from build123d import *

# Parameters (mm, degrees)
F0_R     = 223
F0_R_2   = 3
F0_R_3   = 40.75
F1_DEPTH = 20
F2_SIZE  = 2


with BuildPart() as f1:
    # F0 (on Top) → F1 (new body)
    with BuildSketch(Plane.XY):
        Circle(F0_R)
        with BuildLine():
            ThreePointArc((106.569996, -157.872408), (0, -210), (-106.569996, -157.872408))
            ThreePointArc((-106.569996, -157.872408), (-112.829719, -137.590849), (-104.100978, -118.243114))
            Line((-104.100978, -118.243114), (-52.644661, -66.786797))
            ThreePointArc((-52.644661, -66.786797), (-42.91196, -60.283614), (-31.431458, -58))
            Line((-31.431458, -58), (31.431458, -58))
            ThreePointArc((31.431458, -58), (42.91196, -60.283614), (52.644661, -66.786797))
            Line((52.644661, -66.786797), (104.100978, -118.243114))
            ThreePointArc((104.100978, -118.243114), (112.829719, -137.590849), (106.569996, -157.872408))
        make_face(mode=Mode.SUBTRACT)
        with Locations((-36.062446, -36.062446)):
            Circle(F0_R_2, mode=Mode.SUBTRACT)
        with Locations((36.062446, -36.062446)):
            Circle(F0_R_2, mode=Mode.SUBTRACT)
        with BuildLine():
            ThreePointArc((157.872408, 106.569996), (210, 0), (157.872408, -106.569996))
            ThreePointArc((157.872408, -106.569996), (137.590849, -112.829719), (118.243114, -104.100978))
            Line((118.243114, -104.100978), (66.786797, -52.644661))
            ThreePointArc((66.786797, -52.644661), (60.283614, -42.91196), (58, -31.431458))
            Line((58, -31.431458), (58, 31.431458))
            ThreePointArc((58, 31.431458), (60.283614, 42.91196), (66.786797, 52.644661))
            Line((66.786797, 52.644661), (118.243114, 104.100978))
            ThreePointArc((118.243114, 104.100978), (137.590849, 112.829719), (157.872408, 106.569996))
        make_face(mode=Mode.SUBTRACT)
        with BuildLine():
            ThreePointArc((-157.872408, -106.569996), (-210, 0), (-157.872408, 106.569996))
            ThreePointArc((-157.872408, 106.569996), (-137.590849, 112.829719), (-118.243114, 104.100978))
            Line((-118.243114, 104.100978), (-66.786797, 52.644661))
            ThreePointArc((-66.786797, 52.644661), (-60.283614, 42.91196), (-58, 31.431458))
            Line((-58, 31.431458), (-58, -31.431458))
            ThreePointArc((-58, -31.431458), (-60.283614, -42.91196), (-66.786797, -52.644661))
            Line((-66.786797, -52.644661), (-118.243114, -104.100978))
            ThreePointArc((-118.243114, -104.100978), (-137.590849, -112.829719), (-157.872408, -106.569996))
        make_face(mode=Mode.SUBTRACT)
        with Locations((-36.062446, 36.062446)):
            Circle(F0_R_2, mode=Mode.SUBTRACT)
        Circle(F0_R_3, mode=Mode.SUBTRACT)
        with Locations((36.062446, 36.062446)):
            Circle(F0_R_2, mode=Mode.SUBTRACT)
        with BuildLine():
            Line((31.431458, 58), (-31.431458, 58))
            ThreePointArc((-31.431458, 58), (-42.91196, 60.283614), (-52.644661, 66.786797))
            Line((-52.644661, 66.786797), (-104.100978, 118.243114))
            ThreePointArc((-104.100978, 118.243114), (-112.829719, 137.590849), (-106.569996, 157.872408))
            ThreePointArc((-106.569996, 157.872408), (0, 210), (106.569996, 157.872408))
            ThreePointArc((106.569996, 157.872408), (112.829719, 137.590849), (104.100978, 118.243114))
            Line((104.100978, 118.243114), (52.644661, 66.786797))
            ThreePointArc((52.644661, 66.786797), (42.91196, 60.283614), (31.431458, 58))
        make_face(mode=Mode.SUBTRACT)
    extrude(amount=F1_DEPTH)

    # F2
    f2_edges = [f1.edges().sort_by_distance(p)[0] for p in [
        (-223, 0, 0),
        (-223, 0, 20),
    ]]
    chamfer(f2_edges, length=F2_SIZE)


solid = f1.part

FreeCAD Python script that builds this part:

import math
import FreeCAD as App
import Part
import Sketcher
Q = App.Units.Quantity


def edges_at(feature, points):
    """Names of the edges that pass closest to the given points."""
    edges = feature.Shape.Edges
    near = lambda p: min(range(len(edges)), key=lambda i: edges[i].distToShape(Part.Vertex(*p))[0])
    return sorted({f"Edge{near(p) + 1}" for p in points})

doc = App.newDocument("Part")
body = doc.addObject("PartDesign::Body", "Body")

# Sketch on XY plane
sketch1 = body.newObject("Sketcher::SketchObject", "Sketch")
sketch1.AttachmentSupport = (doc.getObject("XY_Plane"), [""])
sketch1.MapMode = "FlatFace"
sketch1.addGeometry([
    Part.Circle(App.Vector(0, 0, 0), App.Vector(0, 0, 1), 223),  # 0
    Part.Circle(App.Vector(-36.1, -36.1, 0), App.Vector(0, 0, 1), 3),  # 1
    Part.ArcOfCircle(Part.Circle(App.Vector(82.9, -139.5, 0), App.Vector(0, 0, 1), 30), math.radians(-38), math.radians(45)),  # 2
    Part.ArcOfCircle(Part.Circle(App.Vector(0, -75, 0), App.Vector(0, 0, 1), 135), math.radians(-142), math.radians(-38)),  # 3
    Part.ArcOfCircle(Part.Circle(App.Vector(-82.9, -139.5, 0), App.Vector(0, 0, 1), 30), math.radians(135), math.radians(218)),  # 4
    Part.LineSegment(App.Vector(-104.1, -118.2, 0), App.Vector(-52.6, -66.8, 0)),  # 5
    Part.ArcOfCircle(Part.Circle(App.Vector(-31.4, -88, 0), App.Vector(0, 0, 1), 30), math.radians(90), math.radians(135)),  # 6
    Part.LineSegment(App.Vector(-31.4, -58, 0), App.Vector(31.4, -58, 0)),  # 7
    Part.ArcOfCircle(Part.Circle(App.Vector(31.4, -88, 0), App.Vector(0, 0, 1), 30), math.radians(45), math.radians(90)),  # 8
    Part.LineSegment(App.Vector(52.6, -66.8, 0), App.Vector(104.1, -118.2, 0)),  # 9
    Part.Circle(App.Vector(36.1, -36.1, 0), App.Vector(0, 0, 1), 3),  # 10
    Part.ArcOfCircle(Part.Circle(App.Vector(-139.5, -82.9, 0), App.Vector(0, 0, 1), 30), math.radians(-128), math.radians(-45)),  # 11
    Part.ArcOfCircle(Part.Circle(App.Vector(-75, 0, 0), App.Vector(0, 0, 1), 135), math.radians(128), math.radians(232)),  # 12
    Part.ArcOfCircle(Part.Circle(App.Vector(-139.5, 82.9, 0), App.Vector(0, 0, 1), 30), math.radians(45), math.radians(128)),  # 13
    Part.LineSegment(App.Vector(-118.2, 104.1, 0), App.Vector(-66.8, 52.6, 0)),  # 14
    Part.ArcOfCircle(Part.Circle(App.Vector(-88, 31.4, 0), App.Vector(0, 0, 1), 30), math.radians(0), math.radians(45)),  # 15
    Part.LineSegment(App.Vector(-58, 31.4, 0), App.Vector(-58, -31.4, 0)),  # 16
    Part.ArcOfCircle(Part.Circle(App.Vector(-88, -31.4, 0), App.Vector(0, 0, 1), 30), math.radians(-45), math.radians(0)),  # 17
    Part.LineSegment(App.Vector(-66.8, -52.6, 0), App.Vector(-118.2, -104.1, 0)),  # 18
    Part.Circle(App.Vector(-36.1, 36.1, 0), App.Vector(0, 0, 1), 3),  # 19
    Part.Circle(App.Vector(0, 0, 0), App.Vector(0, 0, 1), 40.8),  # 20
    Part.Circle(App.Vector(36.1, 36.1, 0), App.Vector(0, 0, 1), 3),  # 21
    Part.ArcOfCircle(Part.Circle(App.Vector(139.5, 82.9, 0), App.Vector(0, 0, 1), 30), math.radians(52), math.radians(135)),  # 22
    Part.ArcOfCircle(Part.Circle(App.Vector(75, 0, 0), App.Vector(0, 0, 1), 135), math.radians(-52), math.radians(52)),  # 23
    Part.ArcOfCircle(Part.Circle(App.Vector(139.5, -82.9, 0), App.Vector(0, 0, 1), 30), math.radians(-135), math.radians(-52)),  # 24
    Part.LineSegment(App.Vector(118.2, -104.1, 0), App.Vector(66.8, -52.6, 0)),  # 25
    Part.ArcOfCircle(Part.Circle(App.Vector(88, -31.4, 0), App.Vector(0, 0, 1), 30), math.radians(-180), math.radians(-135)),  # 26
    Part.LineSegment(App.Vector(58, -31.4, 0), App.Vector(58, 31.4, 0)),  # 27
    Part.ArcOfCircle(Part.Circle(App.Vector(88, 31.4, 0), App.Vector(0, 0, 1), 30), math.radians(135), math.radians(180)),  # 28
    Part.LineSegment(App.Vector(66.8, 52.6, 0), App.Vector(118.2, 104.1, 0)),  # 29
    Part.ArcOfCircle(Part.Circle(App.Vector(31.4, 88, 0), App.Vector(0, 0, 1), 30), math.radians(-90), math.radians(-45)),  # 30
    Part.LineSegment(App.Vector(31.4, 58, 0), App.Vector(-31.4, 58, 0)),  # 31
    Part.ArcOfCircle(Part.Circle(App.Vector(-31.4, 88, 0), App.Vector(0, 0, 1), 30), math.radians(-135), math.radians(-90)),  # 32
    Part.LineSegment(App.Vector(-52.6, 66.8, 0), App.Vector(-104.1, 118.2, 0)),  # 33
    Part.ArcOfCircle(Part.Circle(App.Vector(-82.9, 139.5, 0), App.Vector(0, 0, 1), 30), math.radians(142), math.radians(225)),  # 34
    Part.ArcOfCircle(Part.Circle(App.Vector(0, 75, 0), App.Vector(0, 0, 1), 135), math.radians(38), math.radians(142)),  # 35
    Part.ArcOfCircle(Part.Circle(App.Vector(82.9, 139.5, 0), App.Vector(0, 0, 1), 30), math.radians(-45), math.radians(38)),  # 36
    Part.LineSegment(App.Vector(104.1, 118.2, 0), App.Vector(52.6, 66.8, 0)),  # 37
], False)
sketch1.addConstraint([
    Sketcher.Constraint("Tangent", 2, 1, 3, 2),
    Sketcher.Constraint("Tangent", 3, 1, 4, 2),
    Sketcher.Constraint("Tangent", 4, 1, 5, 1),
    Sketcher.Constraint("Tangent", 5, 2, 6, 2),
    Sketcher.Constraint("Tangent", 6, 1, 7, 1),
    Sketcher.Constraint("Tangent", 7, 2, 8, 2),
    Sketcher.Constraint("Tangent", 8, 1, 9, 1),
    Sketcher.Constraint("Tangent", 9, 2, 2, 2),
    Sketcher.Constraint("Tangent", 11, 1, 12, 2),
    Sketcher.Constraint("Tangent", 12, 1, 13, 2),
    Sketcher.Constraint("Tangent", 13, 1, 14, 1),
    Sketcher.Constraint("Tangent", 14, 2, 15, 2),
    Sketcher.Constraint("Tangent", 15, 1, 16, 1),
    Sketcher.Constraint("Tangent", 16, 2, 17, 2),
    Sketcher.Constraint("Tangent", 17, 1, 18, 1),
    Sketcher.Constraint("Tangent", 18, 2, 11, 2),
    Sketcher.Constraint("Tangent", 22, 1, 23, 2),
    Sketcher.Constraint("Tangent", 23, 1, 24, 2),
    Sketcher.Constraint("Tangent", 24, 1, 25, 1),
    Sketcher.Constraint("Tangent", 25, 2, 26, 2),
    Sketcher.Constraint("Tangent", 26, 1, 27, 1),
    Sketcher.Constraint("Tangent", 27, 2, 28, 2),
    Sketcher.Constraint("Tangent", 28, 1, 29, 1),
    Sketcher.Constraint("Tangent", 29, 2, 22, 2),
    Sketcher.Constraint("Tangent", 30, 1, 31, 1),
    Sketcher.Constraint("Tangent", 31, 2, 32, 2),
    Sketcher.Constraint("Tangent", 32, 1, 33, 1),
    Sketcher.Constraint("Tangent", 33, 2, 34, 2),
    Sketcher.Constraint("Tangent", 34, 1, 35, 2),
    Sketcher.Constraint("Tangent", 35, 1, 36, 2),
    Sketcher.Constraint("Tangent", 36, 1, 37, 1),
    Sketcher.Constraint("Tangent", 37, 2, 30, 2),
    Sketcher.Constraint("Horizontal", 7),
    Sketcher.Constraint("Vertical", 16),
    Sketcher.Constraint("Vertical", 27),
    Sketcher.Constraint("Horizontal", 31),
    Sketcher.Constraint("Coincident", 0, 3, -1, 1),
    Sketcher.Constraint("Coincident", 20, 3, -1, 1),
    Sketcher.Constraint("Equal", 2, 4),
    Sketcher.Constraint("Equal", 4, 6),
    Sketcher.Constraint("Equal", 6, 8),
    Sketcher.Constraint("Equal", 1, 10),
    Sketcher.Constraint("Equal", 8, 11),
    Sketcher.Constraint("Equal", 3, 12),
    Sketcher.Constraint("Equal", 11, 13),
    Sketcher.Constraint("Equal", 13, 15),
    Sketcher.Constraint("Equal", 15, 17),
    Sketcher.Constraint("Equal", 10, 19),
    Sketcher.Constraint("Equal", 19, 21),
    Sketcher.Constraint("Equal", 17, 22),
    Sketcher.Constraint("Equal", 12, 23),
    Sketcher.Constraint("Equal", 22, 24),
    Sketcher.Constraint("Equal", 24, 26),
    Sketcher.Constraint("Equal", 26, 28),
    Sketcher.Constraint("Equal", 28, 30),
    Sketcher.Constraint("Equal", 30, 32),
    Sketcher.Constraint("Equal", 32, 34),
    Sketcher.Constraint("Equal", 23, 35),
    Sketcher.Constraint("Equal", 34, 36),
    Sketcher.Constraint("Symmetric", 10, 3, 19, 3, -1, 1),
    Sketcher.Constraint("Symmetric", 1, 3, 21, 3, -1, 1),
    Sketcher.Constraint("Symmetric", 11, 3, 22, 3, -1, 1),
    Sketcher.Constraint("Symmetric", 13, 3, 24, 3, -1, 1),
    Sketcher.Constraint("Symmetric", 15, 3, 26, 3, -1, 1),
    Sketcher.Constraint("Symmetric", 6, 3, 30, 3, -1, 1),
    Sketcher.Constraint("Symmetric", 2, 3, 34, 3, -1, 1),
    Sketcher.Constraint("Symmetric", 4, 3, 36, 3, -1, 1),
    Sketcher.Constraint("Symmetric", 2, 3, 4, 3, -2),
    Sketcher.Constraint("Symmetric", 1, 3, 10, 3, -2),
    Sketcher.Constraint("Symmetric", 13, 3, 22, 3, -2),
    Sketcher.Constraint("Perpendicular", 5, 9),
    Sketcher.Constraint("Parallel", 9, 14),
    Sketcher.Constraint("Perpendicular", 14, 18),
    Sketcher.Constraint("Perpendicular", 25, 29),
    Sketcher.Constraint("Perpendicular", 29, 33),
    Sketcher.Constraint("Horizontal", 17, 3, 26, 3),
    Sketcher.Constraint("Equal", 31, 16),
    Sketcher.Constraint("Equal", 9, 14),
    Sketcher.Constraint("Diameter", 0, Q("446 mm")),
    Sketcher.Constraint("Diameter", 1, Q("6 mm")),
    Sketcher.Constraint("Radius", 2, Q("30 mm")),
    Sketcher.Constraint("Radius", 3, Q("135.000001 mm")),
    Sketcher.Constraint("Diameter", 20, Q("81.5 mm")),
    Sketcher.Constraint("DistanceY", 3, 3, -1, 1, Q("74.999999 mm")),
    Sketcher.Constraint("DistanceY", 6, 3, -1, 1, Q("88 mm")),
    Sketcher.Constraint("DistanceX", 12, 3, -1, 1, Q("74.999999 mm")),
    Sketcher.Constraint("Distance", 5, Q("72.770221 mm")),
    Sketcher.Constraint("DistanceX", 1, 3, 2, 3, Q("118.950221 mm")),
    Sketcher.Constraint("DistanceY", 2, 3, 1, 3, Q("103.393871 mm")),
])
pad1 = body.newObject("PartDesign::Pad", "Pad")
pad1.Profile = sketch1
pad1.Length = 20
doc.recompute()

chamfer = body.newObject("PartDesign::Chamfer", "Chamfer")
chamfer.Base = (pad1, edges_at(pad1, [(-223, 0, 0), (-223, 0, 20)]))
chamfer.Size = 2

doc.recompute()
